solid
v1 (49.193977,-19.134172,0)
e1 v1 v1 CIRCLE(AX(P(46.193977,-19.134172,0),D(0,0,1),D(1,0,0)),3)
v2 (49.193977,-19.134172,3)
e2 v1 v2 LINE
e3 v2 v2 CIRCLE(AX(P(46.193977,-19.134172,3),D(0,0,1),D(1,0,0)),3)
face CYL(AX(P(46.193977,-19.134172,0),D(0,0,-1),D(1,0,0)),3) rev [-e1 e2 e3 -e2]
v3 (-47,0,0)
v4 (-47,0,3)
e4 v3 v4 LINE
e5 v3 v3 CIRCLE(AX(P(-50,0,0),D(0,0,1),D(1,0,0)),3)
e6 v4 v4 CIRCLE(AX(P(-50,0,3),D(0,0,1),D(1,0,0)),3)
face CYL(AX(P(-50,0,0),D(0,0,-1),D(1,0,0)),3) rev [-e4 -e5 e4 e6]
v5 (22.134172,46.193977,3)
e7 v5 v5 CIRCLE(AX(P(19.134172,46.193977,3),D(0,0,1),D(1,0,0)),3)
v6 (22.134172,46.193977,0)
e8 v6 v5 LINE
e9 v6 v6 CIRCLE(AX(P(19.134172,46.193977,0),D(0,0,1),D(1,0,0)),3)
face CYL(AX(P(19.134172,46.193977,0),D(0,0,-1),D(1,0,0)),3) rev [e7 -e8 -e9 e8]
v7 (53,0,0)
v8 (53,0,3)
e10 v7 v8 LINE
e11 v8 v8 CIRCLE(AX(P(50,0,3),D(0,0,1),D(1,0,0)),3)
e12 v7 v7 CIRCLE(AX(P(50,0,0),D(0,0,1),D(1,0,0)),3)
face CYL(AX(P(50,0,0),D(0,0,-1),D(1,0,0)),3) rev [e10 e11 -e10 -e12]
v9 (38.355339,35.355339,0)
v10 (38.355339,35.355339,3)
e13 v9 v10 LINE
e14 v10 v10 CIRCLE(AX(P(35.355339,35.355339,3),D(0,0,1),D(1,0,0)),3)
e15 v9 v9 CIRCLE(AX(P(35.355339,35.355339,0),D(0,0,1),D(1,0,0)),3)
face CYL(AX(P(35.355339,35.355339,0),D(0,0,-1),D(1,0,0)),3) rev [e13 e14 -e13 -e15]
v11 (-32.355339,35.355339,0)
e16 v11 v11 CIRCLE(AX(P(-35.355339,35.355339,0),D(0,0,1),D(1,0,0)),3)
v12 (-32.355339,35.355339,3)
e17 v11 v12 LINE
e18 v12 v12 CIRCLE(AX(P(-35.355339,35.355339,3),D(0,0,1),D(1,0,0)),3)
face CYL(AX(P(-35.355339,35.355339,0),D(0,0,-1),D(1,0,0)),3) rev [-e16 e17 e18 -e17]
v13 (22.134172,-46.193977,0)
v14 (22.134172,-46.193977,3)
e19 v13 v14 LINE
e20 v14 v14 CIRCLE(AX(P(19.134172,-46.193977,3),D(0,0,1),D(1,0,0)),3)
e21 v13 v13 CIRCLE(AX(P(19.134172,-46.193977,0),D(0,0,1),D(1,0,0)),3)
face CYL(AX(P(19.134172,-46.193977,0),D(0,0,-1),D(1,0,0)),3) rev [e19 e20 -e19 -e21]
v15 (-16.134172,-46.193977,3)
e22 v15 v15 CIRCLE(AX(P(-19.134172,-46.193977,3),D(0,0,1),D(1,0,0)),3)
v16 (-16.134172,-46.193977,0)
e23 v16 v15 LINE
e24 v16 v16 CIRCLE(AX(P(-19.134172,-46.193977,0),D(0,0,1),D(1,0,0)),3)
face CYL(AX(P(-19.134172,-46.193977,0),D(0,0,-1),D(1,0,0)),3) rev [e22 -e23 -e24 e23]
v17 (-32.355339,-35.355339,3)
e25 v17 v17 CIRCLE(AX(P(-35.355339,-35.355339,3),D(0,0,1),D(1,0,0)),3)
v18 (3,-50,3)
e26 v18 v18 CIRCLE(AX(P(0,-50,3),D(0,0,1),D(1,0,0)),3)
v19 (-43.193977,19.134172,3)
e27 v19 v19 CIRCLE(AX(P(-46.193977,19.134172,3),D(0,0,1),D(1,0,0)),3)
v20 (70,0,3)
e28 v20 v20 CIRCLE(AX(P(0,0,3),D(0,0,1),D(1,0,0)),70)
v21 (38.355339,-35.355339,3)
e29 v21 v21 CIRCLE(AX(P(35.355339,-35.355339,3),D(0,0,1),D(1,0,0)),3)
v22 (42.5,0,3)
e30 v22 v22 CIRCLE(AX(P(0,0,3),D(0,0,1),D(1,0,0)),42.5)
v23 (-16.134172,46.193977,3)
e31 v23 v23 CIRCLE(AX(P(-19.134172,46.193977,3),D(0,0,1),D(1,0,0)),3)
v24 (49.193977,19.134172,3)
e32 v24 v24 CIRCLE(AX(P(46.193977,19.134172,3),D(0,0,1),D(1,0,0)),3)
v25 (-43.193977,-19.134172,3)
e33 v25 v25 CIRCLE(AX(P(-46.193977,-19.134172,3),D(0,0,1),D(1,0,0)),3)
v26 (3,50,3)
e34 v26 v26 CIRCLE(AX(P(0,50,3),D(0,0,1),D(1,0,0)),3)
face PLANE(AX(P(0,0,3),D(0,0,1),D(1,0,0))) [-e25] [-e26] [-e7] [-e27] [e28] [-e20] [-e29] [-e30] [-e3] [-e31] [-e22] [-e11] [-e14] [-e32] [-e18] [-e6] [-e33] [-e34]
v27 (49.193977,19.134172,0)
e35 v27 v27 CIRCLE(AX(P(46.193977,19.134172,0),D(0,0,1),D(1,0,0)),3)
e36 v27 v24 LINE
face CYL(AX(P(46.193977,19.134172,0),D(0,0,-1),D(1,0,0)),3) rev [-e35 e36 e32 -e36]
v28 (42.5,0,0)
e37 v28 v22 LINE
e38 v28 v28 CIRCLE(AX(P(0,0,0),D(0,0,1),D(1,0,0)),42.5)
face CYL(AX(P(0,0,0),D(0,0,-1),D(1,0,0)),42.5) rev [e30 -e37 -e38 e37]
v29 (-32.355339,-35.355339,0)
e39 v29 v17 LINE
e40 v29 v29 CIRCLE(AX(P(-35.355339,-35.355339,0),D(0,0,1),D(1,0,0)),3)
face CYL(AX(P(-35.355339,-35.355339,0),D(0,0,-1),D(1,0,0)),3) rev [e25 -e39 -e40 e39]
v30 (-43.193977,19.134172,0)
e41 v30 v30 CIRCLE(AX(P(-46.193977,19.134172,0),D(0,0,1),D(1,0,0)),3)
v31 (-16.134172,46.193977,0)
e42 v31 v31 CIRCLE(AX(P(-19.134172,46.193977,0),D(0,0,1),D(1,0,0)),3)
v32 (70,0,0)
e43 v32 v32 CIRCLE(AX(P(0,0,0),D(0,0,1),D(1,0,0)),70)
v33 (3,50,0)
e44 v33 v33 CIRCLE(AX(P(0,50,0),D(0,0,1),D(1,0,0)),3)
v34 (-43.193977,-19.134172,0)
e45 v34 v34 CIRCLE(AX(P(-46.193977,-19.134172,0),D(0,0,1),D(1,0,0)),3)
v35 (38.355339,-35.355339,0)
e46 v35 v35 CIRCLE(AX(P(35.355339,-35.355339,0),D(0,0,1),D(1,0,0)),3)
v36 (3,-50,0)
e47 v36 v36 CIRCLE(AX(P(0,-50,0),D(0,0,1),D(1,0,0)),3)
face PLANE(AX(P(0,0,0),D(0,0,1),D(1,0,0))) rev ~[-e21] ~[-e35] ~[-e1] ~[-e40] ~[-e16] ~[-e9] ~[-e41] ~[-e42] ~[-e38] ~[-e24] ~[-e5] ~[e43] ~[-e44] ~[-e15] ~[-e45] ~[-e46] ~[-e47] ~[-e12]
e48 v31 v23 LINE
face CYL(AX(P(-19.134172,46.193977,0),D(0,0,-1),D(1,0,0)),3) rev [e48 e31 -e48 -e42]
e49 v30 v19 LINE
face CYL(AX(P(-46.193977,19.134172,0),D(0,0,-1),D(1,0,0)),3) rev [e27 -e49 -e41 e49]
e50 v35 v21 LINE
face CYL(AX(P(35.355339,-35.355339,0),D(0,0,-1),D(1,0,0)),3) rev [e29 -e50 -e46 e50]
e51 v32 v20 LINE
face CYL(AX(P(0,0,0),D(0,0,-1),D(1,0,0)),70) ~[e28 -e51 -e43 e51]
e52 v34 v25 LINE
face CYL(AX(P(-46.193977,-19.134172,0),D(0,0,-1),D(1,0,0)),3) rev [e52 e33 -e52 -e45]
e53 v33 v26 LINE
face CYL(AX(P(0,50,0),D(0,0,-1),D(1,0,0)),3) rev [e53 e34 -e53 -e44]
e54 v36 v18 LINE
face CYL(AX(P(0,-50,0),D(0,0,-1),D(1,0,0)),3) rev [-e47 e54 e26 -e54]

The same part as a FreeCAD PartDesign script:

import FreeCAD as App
import Part
import Sketcher

doc = App.newDocument("Part")
body = doc.addObject("PartDesign::Body", "Body")

sketch1 = body.newObject("Sketcher::SketchObject", "Sketch")
sketch1.AttachmentSupport = (doc.getObject("XY_Plane"), [""])
sketch1.MapMode = "FlatFace"
sketch1.addGeometry(Part.Circle(App.Vector(0, 0, 0), App.Vector(0, 0, 1), 70), False)
sketch1.addGeometry(Part.Circle(App.Vector(-35.4, -35.4, 0), App.Vector(0, 0, 1), 3), False)
sketch1.addGeometry(Part.Circle(App.Vector(-19.1, -46.2, 0), App.Vector(0, 0, 1), 3), False)
sketch1.addGeometry(Part.Circle(App.Vector(-46.2, -19.1, 0), App.Vector(0, 0, 1), 3), False)
sketch1.addGeometry(Part.Circle(App.Vector(0, -50, 0), App.Vector(0, 0, 1), 3), False)
sketch1.addGeometry(Part.Circle(App.Vector(19.1, -46.2, 0), App.Vector(0, 0, 1), 3), False)
sketch1.addGeometry(Part.Circle(App.Vector(35.4, -35.4, 0), App.Vector(0, 0, 1), 3), False)
sketch1.addGeometry(Part.Circle(App.Vector(46.2, -19.1, 0), App.Vector(0, 0, 1), 3), False)
sketch1.addGeometry(Part.Circle(App.Vector(-50, 0, 0), App.Vector(0, 0, 1), 3), False)
sketch1.addGeometry(Part.Circle(App.Vector(-46.2, 19.1, 0), App.Vector(0, 0, 1), 3), False)
sketch1.addGeometry(Part.Circle(App.Vector(-35.4, 35.4, 0), App.Vector(0, 0, 1), 3), False)
sketch1.addGeometry(Part.Circle(App.Vector(-19.1, 46.2, 0), App.Vector(0, 0, 1), 3), False)
sketch1.addGeometry(Part.Circle(App.Vector(0, 0, 0), App.Vector(0, 0, 1), 42.5), False)
sketch1.addGeometry(Part.Circle(App.Vector(50, 0, 0), App.Vector(0, 0, 1), 3), False)
sketch1.addGeometry(Part.Circle(App.Vector(46.2, 19.1, 0), App.Vector(0, 0, 1), 3), False)
sketch1.addGeometry(Part.Circle(App.Vector(0, 50, 0), App.Vector(0, 0, 1), 3), False)
sketch1.addGeometry(Part.Circle(App.Vector(19.1, 46.2, 0), App.Vector(0, 0, 1), 3), False)
sketch1.addGeometry(Part.Circle(App.Vector(35.4, 35.4, 0), App.Vector(0, 0, 1), 3), False)
sketch1.addConstraint(Sketcher.Constraint("Coincident", 0, 3, -1, 1))
sketch1.addConstraint(Sketcher.Constraint("Coincident", 12, 3, -1, 1))
sketch1.addConstraint(Sketcher.Constraint("Equal", 1, 2))
sketch1.addConstraint(Sketcher.Constraint("Equal", 2, 3))
sketch1.addConstraint(Sketcher.Constraint("Equal", 3, 4))
sketch1.addConstraint(Sketcher.Constraint("Equal", 4, 5))
sketch1.addConstraint(Sketcher.Constraint("Equal", 5, 6))
sketch1.addConstraint(Sketcher.Constraint("Equal", 6, 7))
sketch1.addConstraint(Sketcher.Constraint("Equal", 7, 8))
sketch1.addConstraint(Sketcher.Constraint("Equal", 8, 9))
sketch1.addConstraint(Sketcher.Constraint("Equal", 9, 10))
sketch1.addConstraint(Sketcher.Constraint("Equal", 10, 11))
sketch1.addConstraint(Sketcher.Constraint("Equal", 11, 13))
sketch1.addConstraint(Sketcher.Constraint("Equal", 13, 14))
sketch1.addConstraint(Sketcher.Constraint("Equal", 14, 15))
sketch1.addConstraint(Sketcher.Constraint("Equal", 15, 16))
sketch1.addConstraint(Sketcher.Constraint("Equal", 16, 17))
sketch1.addConstraint(Sketcher.Constraint("Symmetric", 7, 3, 9, 3, -1, 1))
sketch1.addConstraint(Sketcher.Constraint("Symmetric", 6, 3, 10, 3, -1, 1))
sketch1.addConstraint(Sketcher.Constraint("Symmetric", 5, 3, 11, 3, -1, 1))
sketch1.addConstraint(Sketcher.Constraint("Symmetric", 8, 3, 13, 3, -1, 1))
sketch1.addConstraint(Sketcher.Constraint("Symmetric", 3, 3, 14, 3, -1, 1))
sketch1.addConstraint(Sketcher.Constraint("Symmetric", 4, 3, 15, 3, -1, 1))
sketch1.addConstraint(Sketcher.Constraint("Symmetric", 2, 3, 16, 3, -1, 1))
sketch1.addConstraint(Sketcher.Constraint("Symmetric", 1, 3, 17, 3, -1, 1))
sketch1.addConstraint(Sketcher.Constraint("Symmetric", 2, 3, 5, 3, -2))
sketch1.addConstraint(Sketcher.Constraint("Symmetric", 1, 3, 6, 3, -2))
sketch1.addConstraint(Sketcher.Constraint("Symmetric", 3, 3, 7, 3, -2))
sketch1.addConstraint(Sketcher.Constraint("PointOnObject", 4, 3, -2))
sketch1.addConstraint(Sketcher.Constraint("PointOnObject", 8, 3, -1))
sketch1.addConstraint(Sketcher.Constraint("Diameter", 0, 140.0))
sketch1.addConstraint(Sketcher.Constraint("Diameter", 1, 6.0))
sketch1.addConstraint(Sketcher.Constraint("Diameter", 12, 85.0))
sketch1.addConstraint(Sketcher.Constraint("DistanceY", 4, 3, -1, 1, 50.0))
sketch1.addConstraint(Sketcher.Constraint("DistanceX", 8, 3, -1, 1, 50.0))
sketch1.addConstraint(Sketcher.Constraint("DistanceX", 1, 3, -1, 1, 35.355339))
sketch1.addConstraint(Sketcher.Constraint("DistanceY", 1, 3, -1, 1, 35.355339))
sketch1.addConstraint(Sketcher.Constraint("DistanceX", 2, 3, -1, 1, 19.134172))
sketch1.addConstraint(Sketcher.Constraint("DistanceY", 3, 3, -1, 1, 19.134172))
sketch1.addConstraint(Sketcher.Constraint("DistanceX", 3, 3, 5, 3, 65.328149))
sketch1.addConstraint(Sketcher.Constraint("DistanceY", 2, 3, 9, 3, 65.328149))
pad1 = body.newObject("PartDesign::Pad", "Pad")
pad1.Profile = sketch1
pad1.Length = 3

doc.recompute()
